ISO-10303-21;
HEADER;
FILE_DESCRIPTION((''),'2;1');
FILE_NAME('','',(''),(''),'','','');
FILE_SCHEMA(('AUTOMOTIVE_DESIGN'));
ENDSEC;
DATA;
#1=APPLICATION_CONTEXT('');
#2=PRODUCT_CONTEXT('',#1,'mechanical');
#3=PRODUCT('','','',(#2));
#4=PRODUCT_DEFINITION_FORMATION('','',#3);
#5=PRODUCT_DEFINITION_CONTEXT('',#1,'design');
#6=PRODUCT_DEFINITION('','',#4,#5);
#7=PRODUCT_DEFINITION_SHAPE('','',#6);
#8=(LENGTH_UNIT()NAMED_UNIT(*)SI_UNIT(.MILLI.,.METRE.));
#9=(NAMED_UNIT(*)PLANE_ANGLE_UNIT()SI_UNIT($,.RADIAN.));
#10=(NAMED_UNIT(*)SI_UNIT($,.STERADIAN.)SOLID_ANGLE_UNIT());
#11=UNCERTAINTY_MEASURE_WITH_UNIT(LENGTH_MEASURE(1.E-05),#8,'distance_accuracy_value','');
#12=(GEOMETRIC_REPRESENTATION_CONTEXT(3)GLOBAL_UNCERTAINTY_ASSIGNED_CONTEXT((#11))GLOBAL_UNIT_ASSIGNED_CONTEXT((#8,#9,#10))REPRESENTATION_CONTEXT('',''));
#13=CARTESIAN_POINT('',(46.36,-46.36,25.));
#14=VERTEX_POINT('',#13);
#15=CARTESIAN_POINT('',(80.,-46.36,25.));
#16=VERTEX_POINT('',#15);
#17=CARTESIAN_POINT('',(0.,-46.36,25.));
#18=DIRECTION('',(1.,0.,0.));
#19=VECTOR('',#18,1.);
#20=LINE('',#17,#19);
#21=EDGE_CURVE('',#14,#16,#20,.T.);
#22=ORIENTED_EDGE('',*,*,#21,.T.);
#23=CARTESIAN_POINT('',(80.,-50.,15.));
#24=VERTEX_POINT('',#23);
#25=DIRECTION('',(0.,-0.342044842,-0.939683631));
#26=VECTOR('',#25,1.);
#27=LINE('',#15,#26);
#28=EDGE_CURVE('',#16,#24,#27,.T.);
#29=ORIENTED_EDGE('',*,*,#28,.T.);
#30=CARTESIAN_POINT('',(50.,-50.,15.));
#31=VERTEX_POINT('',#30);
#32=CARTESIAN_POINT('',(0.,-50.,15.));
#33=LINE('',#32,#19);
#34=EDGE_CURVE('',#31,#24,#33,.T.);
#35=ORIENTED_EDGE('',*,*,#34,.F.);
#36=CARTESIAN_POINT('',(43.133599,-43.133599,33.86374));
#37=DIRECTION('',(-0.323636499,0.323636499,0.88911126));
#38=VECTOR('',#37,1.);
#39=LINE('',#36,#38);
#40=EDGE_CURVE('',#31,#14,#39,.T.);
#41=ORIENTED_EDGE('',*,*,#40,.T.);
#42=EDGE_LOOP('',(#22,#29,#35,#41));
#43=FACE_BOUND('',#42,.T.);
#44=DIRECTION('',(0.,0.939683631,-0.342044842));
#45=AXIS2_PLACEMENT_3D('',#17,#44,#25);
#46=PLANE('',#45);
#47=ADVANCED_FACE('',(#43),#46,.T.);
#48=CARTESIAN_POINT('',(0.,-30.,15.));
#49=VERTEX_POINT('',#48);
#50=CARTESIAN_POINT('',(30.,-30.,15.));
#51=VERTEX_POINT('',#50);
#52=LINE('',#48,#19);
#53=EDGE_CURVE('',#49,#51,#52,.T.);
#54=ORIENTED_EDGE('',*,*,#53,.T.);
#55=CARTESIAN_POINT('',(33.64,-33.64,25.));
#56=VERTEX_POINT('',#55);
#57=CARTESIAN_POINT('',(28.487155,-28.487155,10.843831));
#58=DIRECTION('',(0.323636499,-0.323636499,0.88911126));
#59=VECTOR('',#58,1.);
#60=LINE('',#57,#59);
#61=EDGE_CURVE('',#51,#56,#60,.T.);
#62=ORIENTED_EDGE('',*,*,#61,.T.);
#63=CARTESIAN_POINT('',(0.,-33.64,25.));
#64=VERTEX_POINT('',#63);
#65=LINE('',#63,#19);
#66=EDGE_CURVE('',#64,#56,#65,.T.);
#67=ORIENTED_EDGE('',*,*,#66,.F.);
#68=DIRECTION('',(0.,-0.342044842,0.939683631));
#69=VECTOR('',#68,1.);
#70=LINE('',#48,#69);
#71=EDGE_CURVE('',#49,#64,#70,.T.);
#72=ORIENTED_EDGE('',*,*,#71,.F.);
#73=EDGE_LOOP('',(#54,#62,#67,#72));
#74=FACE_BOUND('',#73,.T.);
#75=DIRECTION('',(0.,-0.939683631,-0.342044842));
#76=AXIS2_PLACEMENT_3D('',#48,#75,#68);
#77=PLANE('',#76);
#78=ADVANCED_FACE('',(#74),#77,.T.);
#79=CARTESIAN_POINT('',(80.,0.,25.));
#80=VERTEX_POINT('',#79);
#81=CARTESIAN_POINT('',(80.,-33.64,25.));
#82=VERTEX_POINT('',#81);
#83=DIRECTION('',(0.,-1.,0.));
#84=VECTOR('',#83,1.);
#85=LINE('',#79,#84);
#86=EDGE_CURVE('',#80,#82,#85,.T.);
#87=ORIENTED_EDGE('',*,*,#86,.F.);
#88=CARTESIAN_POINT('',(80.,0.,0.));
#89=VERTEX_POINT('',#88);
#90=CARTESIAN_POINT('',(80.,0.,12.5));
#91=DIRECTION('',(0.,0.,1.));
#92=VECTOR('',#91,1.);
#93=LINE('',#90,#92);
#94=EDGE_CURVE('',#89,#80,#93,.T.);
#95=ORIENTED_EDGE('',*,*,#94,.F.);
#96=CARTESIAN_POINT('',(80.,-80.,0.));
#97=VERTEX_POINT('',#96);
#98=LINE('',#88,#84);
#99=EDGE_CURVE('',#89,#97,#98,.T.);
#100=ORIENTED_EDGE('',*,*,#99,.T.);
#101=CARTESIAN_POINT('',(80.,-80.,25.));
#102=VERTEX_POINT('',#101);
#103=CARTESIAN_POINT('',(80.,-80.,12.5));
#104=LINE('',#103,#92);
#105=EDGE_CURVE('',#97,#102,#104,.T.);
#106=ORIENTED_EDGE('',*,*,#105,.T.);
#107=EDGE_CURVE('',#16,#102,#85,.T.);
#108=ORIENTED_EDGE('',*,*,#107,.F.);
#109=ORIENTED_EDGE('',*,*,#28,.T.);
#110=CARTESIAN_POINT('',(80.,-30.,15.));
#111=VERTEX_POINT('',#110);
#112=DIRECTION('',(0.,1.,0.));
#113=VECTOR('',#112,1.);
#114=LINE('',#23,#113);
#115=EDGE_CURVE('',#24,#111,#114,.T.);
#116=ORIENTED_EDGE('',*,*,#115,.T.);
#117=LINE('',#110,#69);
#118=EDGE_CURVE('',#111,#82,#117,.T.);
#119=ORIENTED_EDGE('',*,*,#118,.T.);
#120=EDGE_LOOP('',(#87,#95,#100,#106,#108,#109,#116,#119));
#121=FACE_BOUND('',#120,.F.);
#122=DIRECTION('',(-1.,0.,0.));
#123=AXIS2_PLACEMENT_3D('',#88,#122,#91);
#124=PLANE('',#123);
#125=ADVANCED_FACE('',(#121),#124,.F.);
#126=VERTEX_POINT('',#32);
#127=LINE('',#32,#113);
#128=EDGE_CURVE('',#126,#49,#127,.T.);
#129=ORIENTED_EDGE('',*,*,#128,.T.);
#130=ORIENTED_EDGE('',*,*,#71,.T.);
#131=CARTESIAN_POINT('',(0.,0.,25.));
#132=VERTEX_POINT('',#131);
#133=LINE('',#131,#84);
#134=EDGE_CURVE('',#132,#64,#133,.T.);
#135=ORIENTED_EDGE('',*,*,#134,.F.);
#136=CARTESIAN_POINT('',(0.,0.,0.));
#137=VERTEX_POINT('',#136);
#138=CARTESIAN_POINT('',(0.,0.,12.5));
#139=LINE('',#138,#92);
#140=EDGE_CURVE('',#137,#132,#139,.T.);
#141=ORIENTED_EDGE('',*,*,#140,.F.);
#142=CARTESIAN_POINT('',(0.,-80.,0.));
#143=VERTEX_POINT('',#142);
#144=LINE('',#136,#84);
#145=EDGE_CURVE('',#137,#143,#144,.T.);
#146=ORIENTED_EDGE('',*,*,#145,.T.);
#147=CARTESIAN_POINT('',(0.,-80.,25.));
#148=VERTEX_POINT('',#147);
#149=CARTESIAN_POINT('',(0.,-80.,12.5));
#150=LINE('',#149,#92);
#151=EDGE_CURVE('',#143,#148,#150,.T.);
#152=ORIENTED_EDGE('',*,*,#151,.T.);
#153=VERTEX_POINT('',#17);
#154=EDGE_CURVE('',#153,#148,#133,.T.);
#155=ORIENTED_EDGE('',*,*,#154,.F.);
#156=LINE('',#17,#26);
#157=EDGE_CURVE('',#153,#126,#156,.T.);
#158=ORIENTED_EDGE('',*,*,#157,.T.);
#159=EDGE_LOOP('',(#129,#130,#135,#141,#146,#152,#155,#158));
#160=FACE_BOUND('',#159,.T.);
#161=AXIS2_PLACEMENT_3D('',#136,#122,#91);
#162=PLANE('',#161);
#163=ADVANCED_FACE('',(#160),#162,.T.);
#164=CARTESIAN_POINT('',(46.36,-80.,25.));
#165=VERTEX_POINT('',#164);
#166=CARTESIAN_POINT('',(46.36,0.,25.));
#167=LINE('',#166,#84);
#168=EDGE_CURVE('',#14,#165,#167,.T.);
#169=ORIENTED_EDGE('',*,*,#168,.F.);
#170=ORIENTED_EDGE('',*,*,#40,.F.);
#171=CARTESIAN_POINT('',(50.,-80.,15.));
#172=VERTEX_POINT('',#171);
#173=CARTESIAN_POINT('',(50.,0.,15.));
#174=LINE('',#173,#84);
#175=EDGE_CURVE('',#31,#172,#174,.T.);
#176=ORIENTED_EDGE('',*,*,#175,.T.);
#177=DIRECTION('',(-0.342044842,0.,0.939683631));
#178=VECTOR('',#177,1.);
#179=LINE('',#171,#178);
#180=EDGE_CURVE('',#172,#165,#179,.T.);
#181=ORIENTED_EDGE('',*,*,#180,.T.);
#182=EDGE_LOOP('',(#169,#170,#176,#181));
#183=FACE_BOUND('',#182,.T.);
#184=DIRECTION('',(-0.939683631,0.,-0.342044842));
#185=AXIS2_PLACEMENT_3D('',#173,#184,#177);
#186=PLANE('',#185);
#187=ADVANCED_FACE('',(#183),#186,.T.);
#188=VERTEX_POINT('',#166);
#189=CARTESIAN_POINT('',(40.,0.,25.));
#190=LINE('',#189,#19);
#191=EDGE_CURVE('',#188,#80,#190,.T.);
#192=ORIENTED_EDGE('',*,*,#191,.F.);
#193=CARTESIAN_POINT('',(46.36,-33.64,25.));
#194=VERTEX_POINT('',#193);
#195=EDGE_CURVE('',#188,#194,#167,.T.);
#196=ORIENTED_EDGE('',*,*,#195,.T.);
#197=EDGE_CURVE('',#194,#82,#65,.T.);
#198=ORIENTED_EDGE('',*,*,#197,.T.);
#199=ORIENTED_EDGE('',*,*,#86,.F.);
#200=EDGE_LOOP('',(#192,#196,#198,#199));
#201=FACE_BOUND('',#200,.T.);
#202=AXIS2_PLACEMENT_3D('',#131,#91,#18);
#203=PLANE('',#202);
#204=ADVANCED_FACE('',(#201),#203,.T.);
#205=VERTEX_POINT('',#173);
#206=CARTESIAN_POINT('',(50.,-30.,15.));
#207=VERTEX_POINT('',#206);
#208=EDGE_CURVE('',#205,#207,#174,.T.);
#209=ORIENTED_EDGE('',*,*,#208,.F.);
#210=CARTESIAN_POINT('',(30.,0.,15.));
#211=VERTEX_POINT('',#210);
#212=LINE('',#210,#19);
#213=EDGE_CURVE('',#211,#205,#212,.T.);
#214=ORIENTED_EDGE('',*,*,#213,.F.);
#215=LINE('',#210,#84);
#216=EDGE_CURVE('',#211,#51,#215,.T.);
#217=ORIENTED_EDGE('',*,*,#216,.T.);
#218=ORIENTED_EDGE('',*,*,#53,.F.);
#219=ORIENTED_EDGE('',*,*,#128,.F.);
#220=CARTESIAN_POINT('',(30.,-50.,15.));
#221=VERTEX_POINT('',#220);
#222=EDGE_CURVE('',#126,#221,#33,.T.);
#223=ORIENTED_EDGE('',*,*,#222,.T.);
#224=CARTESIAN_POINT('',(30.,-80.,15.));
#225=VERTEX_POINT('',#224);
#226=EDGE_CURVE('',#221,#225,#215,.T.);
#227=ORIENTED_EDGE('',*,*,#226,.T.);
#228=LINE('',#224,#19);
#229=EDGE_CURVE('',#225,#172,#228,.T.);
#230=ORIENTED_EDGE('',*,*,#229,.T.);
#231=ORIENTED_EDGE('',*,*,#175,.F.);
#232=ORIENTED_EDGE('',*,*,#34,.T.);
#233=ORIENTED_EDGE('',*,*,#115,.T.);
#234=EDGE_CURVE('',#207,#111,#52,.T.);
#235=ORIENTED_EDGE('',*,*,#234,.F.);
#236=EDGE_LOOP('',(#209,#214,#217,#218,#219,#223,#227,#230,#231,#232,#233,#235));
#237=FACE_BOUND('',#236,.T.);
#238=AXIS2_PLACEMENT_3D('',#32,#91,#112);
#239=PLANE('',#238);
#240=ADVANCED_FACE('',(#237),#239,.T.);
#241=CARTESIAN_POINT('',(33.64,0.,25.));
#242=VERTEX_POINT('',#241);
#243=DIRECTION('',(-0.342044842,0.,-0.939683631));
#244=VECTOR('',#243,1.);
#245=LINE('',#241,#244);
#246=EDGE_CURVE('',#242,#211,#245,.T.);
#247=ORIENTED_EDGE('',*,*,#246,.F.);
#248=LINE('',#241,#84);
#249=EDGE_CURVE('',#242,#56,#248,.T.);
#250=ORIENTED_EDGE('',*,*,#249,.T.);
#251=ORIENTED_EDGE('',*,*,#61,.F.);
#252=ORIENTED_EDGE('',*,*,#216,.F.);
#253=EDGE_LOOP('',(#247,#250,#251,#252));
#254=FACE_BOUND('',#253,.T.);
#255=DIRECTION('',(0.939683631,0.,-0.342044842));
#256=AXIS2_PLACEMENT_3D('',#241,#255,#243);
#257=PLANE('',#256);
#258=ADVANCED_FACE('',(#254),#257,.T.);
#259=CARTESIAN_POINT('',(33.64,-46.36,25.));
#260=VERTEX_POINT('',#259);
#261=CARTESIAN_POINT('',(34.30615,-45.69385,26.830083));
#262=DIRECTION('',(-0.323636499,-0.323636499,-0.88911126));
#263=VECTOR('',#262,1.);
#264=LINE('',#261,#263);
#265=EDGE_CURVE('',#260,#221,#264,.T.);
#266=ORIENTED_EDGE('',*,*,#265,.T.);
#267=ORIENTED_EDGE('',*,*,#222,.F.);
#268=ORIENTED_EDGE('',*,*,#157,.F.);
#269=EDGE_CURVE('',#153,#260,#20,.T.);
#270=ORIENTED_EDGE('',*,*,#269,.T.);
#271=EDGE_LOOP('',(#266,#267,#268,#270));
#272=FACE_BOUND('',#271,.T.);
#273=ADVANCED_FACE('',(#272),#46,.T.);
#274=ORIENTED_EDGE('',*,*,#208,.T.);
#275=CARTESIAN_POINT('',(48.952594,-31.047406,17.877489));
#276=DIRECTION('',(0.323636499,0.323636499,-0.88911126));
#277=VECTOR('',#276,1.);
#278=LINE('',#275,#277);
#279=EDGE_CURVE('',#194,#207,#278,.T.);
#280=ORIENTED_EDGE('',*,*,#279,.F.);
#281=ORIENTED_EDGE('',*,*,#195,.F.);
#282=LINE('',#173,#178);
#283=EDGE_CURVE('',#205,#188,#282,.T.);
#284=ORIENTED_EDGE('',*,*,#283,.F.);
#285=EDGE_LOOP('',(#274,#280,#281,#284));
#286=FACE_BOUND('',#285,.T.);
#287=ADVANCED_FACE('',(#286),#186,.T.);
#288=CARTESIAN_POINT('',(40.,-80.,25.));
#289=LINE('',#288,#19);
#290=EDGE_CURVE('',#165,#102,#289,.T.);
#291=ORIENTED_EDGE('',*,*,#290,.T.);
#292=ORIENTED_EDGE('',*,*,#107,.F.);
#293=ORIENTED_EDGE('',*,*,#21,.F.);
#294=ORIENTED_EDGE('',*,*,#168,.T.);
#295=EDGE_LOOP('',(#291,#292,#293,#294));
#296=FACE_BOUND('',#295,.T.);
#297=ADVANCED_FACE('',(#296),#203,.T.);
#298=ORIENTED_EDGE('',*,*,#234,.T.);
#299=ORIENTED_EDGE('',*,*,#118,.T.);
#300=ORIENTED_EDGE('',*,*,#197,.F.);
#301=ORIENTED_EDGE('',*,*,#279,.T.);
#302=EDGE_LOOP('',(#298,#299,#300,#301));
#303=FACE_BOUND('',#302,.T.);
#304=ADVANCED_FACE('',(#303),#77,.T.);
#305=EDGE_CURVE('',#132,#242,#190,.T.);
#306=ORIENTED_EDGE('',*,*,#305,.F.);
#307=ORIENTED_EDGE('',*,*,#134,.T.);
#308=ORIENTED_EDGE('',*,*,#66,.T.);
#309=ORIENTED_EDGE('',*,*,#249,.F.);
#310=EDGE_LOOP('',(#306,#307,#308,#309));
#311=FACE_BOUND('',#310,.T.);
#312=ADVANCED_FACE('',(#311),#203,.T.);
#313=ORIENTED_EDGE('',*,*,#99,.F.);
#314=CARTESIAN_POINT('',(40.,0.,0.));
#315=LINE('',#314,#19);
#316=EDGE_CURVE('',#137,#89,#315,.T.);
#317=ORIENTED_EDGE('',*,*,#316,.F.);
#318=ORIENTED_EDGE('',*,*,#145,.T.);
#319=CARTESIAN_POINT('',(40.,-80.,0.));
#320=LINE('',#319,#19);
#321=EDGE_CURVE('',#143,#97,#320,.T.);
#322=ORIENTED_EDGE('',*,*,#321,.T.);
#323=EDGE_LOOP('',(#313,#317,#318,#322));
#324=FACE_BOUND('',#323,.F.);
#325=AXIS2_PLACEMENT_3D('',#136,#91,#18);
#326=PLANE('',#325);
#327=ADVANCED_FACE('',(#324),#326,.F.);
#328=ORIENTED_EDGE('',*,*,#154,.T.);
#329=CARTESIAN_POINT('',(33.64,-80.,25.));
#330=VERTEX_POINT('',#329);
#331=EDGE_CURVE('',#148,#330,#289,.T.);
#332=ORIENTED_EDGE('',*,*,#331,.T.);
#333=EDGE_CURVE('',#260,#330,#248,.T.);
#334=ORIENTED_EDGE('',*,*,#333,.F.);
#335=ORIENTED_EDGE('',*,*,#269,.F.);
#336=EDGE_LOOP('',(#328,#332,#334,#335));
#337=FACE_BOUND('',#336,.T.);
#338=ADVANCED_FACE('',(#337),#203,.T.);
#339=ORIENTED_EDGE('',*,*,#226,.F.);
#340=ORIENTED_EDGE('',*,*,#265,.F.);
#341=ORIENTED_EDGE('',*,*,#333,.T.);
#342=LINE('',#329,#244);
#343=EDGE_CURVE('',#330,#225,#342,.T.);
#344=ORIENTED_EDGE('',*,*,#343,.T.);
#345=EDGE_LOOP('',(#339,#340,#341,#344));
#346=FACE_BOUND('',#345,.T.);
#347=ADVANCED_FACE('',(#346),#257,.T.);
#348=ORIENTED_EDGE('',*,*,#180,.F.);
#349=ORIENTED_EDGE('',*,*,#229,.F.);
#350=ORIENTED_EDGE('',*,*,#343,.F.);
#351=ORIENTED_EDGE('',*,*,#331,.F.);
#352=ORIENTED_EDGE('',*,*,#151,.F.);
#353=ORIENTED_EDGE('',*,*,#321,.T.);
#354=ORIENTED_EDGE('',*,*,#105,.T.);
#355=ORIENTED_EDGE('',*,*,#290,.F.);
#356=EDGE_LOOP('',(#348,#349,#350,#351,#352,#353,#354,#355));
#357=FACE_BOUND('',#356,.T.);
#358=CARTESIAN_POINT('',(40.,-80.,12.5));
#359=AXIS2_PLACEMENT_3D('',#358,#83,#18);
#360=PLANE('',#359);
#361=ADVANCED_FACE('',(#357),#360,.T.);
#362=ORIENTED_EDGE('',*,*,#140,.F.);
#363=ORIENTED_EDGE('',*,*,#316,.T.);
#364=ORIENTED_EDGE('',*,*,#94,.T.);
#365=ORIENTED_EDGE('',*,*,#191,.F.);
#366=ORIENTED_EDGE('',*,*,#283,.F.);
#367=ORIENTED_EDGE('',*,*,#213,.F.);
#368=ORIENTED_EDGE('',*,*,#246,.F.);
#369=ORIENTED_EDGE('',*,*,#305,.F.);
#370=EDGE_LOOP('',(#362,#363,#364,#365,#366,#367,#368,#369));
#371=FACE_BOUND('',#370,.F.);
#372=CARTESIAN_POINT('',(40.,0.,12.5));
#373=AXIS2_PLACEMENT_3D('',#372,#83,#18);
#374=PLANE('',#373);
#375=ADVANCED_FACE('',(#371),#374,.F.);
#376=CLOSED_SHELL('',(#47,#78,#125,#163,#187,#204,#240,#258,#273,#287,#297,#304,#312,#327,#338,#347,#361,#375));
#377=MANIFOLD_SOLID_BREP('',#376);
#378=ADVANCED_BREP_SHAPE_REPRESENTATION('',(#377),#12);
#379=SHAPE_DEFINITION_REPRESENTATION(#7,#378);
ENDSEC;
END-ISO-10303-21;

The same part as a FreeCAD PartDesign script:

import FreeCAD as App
import Part
import Sketcher

V = App.Vector


def add_polygon(sketch, points):
    """Adds a closed chain of lines whose ends are joined by coincident constraints."""
    first, n = sketch.GeometryCount, len(points)
    for a, b in zip(points, points[1:] + points[:1]):
        sketch.addGeometry(Part.LineSegment(App.Vector(*a, 0), App.Vector(*b, 0)), False)
    for i in range(n):
        sketch.addConstraint(Sketcher.Constraint("Coincident", first + i, 2, first + (i + 1) % n, 1))

doc = App.newDocument("Part")
body = doc.addObject("PartDesign::Body", "Body")

# Sketch on XZ plane
sketch1 = body.newObject("Sketcher::SketchObject", "Sketch")
sketch1.AttachmentSupport = (doc.getObject("XZ_Plane"), [""])
sketch1.MapMode = "FlatFace"
add_polygon(sketch1, [(0, 25), (0, 0), (80, 0), (80, 25)])  # lines 0-3
sketch1.addConstraint([
    Sketcher.Constraint("Vertical", 0),
    Sketcher.Constraint("Horizontal", 1),
    Sketcher.Constraint("Vertical", 2),
    Sketcher.Constraint("Horizontal", 3),
    Sketcher.Constraint("Coincident", 0, 2, -1, 1),
    Sketcher.Constraint("DistanceX", 1, 1, 1, 2, 80.0),
    Sketcher.Constraint("DistanceY", 0, 2, 0, 1, 25.0),
])
pad1 = body.newObject("PartDesign::Pad", "Pad")
pad1.Profile = sketch1
pad1.Length = 80

# Sketch on YZ plane
sketch2 = body.newObject("Sketcher::SketchObject", "Sketch001")
sketch2.AttachmentSupport = (doc.getObject("YZ_Plane"), [""])
sketch2.MapMode = "FlatFace"
add_polygon(sketch2, [(-50, 15), (-30, 15), (-33.64, 25), (-46.36, 25)])  # lines 0-3
sketch2.addConstraint([
    Sketcher.Constraint("Horizontal", 0),
    Sketcher.Constraint("Horizontal", 2),
    Sketcher.Constraint("Equal", 1, 3),
    Sketcher.Constraint("DistanceX", 0, 1, 0, 2, 20.0),
    Sketcher.Constraint("DistanceX", 0, 2, -1, 1, 30.0),
    Sketcher.Constraint("DistanceY", -1, 1, 0, 2, 15.0),
    Sketcher.Constraint("DistanceY", -1, 1, 1, 2, 25.0),
    Sketcher.Constraint("DistanceX", 2, 2, 2, 1, 12.72),
])
pocket1 = body.newObject("PartDesign::Pocket", "Pocket")
pocket1.Profile = sketch2
pocket1.Length = 80
pocket1.Reversed = True

# Sketch on XZ plane
sketch3 = body.newObject("Sketcher::SketchObject", "Sketch002")
sketch3.AttachmentSupport = (doc.getObject("XZ_Plane"), [""])
sketch3.MapMode = "FlatFace"
add_polygon(sketch3, [(46.36, 25), (33.64, 25), (30, 15), (50, 15)])  # lines 0-3
sketch3.addConstraint([
    Sketcher.Constraint("Horizontal", 0),
    Sketcher.Constraint("Horizontal", 2),
    Sketcher.Constraint("Equal", 1, 3),
    Sketcher.Constraint("DistanceX", 2, 1, 2, 2, 20.0),
    Sketcher.Constraint("DistanceY", -1, 1, 0, 2, 25.0),
    Sketcher.Constraint("DistanceX", -1, 1, 1, 2, 30.0),
    Sketcher.Constraint("DistanceY", -1, 1, 1, 2, 15.0),
    Sketcher.Constraint("DistanceX", 0, 2, 0, 1, 12.72),
])
pocket2 = body.newObject("PartDesign::Pocket", "Pocket001")
pocket2.Profile = sketch3
pocket2.Length = 80
pocket2.Reversed = True

doc.recompute()
